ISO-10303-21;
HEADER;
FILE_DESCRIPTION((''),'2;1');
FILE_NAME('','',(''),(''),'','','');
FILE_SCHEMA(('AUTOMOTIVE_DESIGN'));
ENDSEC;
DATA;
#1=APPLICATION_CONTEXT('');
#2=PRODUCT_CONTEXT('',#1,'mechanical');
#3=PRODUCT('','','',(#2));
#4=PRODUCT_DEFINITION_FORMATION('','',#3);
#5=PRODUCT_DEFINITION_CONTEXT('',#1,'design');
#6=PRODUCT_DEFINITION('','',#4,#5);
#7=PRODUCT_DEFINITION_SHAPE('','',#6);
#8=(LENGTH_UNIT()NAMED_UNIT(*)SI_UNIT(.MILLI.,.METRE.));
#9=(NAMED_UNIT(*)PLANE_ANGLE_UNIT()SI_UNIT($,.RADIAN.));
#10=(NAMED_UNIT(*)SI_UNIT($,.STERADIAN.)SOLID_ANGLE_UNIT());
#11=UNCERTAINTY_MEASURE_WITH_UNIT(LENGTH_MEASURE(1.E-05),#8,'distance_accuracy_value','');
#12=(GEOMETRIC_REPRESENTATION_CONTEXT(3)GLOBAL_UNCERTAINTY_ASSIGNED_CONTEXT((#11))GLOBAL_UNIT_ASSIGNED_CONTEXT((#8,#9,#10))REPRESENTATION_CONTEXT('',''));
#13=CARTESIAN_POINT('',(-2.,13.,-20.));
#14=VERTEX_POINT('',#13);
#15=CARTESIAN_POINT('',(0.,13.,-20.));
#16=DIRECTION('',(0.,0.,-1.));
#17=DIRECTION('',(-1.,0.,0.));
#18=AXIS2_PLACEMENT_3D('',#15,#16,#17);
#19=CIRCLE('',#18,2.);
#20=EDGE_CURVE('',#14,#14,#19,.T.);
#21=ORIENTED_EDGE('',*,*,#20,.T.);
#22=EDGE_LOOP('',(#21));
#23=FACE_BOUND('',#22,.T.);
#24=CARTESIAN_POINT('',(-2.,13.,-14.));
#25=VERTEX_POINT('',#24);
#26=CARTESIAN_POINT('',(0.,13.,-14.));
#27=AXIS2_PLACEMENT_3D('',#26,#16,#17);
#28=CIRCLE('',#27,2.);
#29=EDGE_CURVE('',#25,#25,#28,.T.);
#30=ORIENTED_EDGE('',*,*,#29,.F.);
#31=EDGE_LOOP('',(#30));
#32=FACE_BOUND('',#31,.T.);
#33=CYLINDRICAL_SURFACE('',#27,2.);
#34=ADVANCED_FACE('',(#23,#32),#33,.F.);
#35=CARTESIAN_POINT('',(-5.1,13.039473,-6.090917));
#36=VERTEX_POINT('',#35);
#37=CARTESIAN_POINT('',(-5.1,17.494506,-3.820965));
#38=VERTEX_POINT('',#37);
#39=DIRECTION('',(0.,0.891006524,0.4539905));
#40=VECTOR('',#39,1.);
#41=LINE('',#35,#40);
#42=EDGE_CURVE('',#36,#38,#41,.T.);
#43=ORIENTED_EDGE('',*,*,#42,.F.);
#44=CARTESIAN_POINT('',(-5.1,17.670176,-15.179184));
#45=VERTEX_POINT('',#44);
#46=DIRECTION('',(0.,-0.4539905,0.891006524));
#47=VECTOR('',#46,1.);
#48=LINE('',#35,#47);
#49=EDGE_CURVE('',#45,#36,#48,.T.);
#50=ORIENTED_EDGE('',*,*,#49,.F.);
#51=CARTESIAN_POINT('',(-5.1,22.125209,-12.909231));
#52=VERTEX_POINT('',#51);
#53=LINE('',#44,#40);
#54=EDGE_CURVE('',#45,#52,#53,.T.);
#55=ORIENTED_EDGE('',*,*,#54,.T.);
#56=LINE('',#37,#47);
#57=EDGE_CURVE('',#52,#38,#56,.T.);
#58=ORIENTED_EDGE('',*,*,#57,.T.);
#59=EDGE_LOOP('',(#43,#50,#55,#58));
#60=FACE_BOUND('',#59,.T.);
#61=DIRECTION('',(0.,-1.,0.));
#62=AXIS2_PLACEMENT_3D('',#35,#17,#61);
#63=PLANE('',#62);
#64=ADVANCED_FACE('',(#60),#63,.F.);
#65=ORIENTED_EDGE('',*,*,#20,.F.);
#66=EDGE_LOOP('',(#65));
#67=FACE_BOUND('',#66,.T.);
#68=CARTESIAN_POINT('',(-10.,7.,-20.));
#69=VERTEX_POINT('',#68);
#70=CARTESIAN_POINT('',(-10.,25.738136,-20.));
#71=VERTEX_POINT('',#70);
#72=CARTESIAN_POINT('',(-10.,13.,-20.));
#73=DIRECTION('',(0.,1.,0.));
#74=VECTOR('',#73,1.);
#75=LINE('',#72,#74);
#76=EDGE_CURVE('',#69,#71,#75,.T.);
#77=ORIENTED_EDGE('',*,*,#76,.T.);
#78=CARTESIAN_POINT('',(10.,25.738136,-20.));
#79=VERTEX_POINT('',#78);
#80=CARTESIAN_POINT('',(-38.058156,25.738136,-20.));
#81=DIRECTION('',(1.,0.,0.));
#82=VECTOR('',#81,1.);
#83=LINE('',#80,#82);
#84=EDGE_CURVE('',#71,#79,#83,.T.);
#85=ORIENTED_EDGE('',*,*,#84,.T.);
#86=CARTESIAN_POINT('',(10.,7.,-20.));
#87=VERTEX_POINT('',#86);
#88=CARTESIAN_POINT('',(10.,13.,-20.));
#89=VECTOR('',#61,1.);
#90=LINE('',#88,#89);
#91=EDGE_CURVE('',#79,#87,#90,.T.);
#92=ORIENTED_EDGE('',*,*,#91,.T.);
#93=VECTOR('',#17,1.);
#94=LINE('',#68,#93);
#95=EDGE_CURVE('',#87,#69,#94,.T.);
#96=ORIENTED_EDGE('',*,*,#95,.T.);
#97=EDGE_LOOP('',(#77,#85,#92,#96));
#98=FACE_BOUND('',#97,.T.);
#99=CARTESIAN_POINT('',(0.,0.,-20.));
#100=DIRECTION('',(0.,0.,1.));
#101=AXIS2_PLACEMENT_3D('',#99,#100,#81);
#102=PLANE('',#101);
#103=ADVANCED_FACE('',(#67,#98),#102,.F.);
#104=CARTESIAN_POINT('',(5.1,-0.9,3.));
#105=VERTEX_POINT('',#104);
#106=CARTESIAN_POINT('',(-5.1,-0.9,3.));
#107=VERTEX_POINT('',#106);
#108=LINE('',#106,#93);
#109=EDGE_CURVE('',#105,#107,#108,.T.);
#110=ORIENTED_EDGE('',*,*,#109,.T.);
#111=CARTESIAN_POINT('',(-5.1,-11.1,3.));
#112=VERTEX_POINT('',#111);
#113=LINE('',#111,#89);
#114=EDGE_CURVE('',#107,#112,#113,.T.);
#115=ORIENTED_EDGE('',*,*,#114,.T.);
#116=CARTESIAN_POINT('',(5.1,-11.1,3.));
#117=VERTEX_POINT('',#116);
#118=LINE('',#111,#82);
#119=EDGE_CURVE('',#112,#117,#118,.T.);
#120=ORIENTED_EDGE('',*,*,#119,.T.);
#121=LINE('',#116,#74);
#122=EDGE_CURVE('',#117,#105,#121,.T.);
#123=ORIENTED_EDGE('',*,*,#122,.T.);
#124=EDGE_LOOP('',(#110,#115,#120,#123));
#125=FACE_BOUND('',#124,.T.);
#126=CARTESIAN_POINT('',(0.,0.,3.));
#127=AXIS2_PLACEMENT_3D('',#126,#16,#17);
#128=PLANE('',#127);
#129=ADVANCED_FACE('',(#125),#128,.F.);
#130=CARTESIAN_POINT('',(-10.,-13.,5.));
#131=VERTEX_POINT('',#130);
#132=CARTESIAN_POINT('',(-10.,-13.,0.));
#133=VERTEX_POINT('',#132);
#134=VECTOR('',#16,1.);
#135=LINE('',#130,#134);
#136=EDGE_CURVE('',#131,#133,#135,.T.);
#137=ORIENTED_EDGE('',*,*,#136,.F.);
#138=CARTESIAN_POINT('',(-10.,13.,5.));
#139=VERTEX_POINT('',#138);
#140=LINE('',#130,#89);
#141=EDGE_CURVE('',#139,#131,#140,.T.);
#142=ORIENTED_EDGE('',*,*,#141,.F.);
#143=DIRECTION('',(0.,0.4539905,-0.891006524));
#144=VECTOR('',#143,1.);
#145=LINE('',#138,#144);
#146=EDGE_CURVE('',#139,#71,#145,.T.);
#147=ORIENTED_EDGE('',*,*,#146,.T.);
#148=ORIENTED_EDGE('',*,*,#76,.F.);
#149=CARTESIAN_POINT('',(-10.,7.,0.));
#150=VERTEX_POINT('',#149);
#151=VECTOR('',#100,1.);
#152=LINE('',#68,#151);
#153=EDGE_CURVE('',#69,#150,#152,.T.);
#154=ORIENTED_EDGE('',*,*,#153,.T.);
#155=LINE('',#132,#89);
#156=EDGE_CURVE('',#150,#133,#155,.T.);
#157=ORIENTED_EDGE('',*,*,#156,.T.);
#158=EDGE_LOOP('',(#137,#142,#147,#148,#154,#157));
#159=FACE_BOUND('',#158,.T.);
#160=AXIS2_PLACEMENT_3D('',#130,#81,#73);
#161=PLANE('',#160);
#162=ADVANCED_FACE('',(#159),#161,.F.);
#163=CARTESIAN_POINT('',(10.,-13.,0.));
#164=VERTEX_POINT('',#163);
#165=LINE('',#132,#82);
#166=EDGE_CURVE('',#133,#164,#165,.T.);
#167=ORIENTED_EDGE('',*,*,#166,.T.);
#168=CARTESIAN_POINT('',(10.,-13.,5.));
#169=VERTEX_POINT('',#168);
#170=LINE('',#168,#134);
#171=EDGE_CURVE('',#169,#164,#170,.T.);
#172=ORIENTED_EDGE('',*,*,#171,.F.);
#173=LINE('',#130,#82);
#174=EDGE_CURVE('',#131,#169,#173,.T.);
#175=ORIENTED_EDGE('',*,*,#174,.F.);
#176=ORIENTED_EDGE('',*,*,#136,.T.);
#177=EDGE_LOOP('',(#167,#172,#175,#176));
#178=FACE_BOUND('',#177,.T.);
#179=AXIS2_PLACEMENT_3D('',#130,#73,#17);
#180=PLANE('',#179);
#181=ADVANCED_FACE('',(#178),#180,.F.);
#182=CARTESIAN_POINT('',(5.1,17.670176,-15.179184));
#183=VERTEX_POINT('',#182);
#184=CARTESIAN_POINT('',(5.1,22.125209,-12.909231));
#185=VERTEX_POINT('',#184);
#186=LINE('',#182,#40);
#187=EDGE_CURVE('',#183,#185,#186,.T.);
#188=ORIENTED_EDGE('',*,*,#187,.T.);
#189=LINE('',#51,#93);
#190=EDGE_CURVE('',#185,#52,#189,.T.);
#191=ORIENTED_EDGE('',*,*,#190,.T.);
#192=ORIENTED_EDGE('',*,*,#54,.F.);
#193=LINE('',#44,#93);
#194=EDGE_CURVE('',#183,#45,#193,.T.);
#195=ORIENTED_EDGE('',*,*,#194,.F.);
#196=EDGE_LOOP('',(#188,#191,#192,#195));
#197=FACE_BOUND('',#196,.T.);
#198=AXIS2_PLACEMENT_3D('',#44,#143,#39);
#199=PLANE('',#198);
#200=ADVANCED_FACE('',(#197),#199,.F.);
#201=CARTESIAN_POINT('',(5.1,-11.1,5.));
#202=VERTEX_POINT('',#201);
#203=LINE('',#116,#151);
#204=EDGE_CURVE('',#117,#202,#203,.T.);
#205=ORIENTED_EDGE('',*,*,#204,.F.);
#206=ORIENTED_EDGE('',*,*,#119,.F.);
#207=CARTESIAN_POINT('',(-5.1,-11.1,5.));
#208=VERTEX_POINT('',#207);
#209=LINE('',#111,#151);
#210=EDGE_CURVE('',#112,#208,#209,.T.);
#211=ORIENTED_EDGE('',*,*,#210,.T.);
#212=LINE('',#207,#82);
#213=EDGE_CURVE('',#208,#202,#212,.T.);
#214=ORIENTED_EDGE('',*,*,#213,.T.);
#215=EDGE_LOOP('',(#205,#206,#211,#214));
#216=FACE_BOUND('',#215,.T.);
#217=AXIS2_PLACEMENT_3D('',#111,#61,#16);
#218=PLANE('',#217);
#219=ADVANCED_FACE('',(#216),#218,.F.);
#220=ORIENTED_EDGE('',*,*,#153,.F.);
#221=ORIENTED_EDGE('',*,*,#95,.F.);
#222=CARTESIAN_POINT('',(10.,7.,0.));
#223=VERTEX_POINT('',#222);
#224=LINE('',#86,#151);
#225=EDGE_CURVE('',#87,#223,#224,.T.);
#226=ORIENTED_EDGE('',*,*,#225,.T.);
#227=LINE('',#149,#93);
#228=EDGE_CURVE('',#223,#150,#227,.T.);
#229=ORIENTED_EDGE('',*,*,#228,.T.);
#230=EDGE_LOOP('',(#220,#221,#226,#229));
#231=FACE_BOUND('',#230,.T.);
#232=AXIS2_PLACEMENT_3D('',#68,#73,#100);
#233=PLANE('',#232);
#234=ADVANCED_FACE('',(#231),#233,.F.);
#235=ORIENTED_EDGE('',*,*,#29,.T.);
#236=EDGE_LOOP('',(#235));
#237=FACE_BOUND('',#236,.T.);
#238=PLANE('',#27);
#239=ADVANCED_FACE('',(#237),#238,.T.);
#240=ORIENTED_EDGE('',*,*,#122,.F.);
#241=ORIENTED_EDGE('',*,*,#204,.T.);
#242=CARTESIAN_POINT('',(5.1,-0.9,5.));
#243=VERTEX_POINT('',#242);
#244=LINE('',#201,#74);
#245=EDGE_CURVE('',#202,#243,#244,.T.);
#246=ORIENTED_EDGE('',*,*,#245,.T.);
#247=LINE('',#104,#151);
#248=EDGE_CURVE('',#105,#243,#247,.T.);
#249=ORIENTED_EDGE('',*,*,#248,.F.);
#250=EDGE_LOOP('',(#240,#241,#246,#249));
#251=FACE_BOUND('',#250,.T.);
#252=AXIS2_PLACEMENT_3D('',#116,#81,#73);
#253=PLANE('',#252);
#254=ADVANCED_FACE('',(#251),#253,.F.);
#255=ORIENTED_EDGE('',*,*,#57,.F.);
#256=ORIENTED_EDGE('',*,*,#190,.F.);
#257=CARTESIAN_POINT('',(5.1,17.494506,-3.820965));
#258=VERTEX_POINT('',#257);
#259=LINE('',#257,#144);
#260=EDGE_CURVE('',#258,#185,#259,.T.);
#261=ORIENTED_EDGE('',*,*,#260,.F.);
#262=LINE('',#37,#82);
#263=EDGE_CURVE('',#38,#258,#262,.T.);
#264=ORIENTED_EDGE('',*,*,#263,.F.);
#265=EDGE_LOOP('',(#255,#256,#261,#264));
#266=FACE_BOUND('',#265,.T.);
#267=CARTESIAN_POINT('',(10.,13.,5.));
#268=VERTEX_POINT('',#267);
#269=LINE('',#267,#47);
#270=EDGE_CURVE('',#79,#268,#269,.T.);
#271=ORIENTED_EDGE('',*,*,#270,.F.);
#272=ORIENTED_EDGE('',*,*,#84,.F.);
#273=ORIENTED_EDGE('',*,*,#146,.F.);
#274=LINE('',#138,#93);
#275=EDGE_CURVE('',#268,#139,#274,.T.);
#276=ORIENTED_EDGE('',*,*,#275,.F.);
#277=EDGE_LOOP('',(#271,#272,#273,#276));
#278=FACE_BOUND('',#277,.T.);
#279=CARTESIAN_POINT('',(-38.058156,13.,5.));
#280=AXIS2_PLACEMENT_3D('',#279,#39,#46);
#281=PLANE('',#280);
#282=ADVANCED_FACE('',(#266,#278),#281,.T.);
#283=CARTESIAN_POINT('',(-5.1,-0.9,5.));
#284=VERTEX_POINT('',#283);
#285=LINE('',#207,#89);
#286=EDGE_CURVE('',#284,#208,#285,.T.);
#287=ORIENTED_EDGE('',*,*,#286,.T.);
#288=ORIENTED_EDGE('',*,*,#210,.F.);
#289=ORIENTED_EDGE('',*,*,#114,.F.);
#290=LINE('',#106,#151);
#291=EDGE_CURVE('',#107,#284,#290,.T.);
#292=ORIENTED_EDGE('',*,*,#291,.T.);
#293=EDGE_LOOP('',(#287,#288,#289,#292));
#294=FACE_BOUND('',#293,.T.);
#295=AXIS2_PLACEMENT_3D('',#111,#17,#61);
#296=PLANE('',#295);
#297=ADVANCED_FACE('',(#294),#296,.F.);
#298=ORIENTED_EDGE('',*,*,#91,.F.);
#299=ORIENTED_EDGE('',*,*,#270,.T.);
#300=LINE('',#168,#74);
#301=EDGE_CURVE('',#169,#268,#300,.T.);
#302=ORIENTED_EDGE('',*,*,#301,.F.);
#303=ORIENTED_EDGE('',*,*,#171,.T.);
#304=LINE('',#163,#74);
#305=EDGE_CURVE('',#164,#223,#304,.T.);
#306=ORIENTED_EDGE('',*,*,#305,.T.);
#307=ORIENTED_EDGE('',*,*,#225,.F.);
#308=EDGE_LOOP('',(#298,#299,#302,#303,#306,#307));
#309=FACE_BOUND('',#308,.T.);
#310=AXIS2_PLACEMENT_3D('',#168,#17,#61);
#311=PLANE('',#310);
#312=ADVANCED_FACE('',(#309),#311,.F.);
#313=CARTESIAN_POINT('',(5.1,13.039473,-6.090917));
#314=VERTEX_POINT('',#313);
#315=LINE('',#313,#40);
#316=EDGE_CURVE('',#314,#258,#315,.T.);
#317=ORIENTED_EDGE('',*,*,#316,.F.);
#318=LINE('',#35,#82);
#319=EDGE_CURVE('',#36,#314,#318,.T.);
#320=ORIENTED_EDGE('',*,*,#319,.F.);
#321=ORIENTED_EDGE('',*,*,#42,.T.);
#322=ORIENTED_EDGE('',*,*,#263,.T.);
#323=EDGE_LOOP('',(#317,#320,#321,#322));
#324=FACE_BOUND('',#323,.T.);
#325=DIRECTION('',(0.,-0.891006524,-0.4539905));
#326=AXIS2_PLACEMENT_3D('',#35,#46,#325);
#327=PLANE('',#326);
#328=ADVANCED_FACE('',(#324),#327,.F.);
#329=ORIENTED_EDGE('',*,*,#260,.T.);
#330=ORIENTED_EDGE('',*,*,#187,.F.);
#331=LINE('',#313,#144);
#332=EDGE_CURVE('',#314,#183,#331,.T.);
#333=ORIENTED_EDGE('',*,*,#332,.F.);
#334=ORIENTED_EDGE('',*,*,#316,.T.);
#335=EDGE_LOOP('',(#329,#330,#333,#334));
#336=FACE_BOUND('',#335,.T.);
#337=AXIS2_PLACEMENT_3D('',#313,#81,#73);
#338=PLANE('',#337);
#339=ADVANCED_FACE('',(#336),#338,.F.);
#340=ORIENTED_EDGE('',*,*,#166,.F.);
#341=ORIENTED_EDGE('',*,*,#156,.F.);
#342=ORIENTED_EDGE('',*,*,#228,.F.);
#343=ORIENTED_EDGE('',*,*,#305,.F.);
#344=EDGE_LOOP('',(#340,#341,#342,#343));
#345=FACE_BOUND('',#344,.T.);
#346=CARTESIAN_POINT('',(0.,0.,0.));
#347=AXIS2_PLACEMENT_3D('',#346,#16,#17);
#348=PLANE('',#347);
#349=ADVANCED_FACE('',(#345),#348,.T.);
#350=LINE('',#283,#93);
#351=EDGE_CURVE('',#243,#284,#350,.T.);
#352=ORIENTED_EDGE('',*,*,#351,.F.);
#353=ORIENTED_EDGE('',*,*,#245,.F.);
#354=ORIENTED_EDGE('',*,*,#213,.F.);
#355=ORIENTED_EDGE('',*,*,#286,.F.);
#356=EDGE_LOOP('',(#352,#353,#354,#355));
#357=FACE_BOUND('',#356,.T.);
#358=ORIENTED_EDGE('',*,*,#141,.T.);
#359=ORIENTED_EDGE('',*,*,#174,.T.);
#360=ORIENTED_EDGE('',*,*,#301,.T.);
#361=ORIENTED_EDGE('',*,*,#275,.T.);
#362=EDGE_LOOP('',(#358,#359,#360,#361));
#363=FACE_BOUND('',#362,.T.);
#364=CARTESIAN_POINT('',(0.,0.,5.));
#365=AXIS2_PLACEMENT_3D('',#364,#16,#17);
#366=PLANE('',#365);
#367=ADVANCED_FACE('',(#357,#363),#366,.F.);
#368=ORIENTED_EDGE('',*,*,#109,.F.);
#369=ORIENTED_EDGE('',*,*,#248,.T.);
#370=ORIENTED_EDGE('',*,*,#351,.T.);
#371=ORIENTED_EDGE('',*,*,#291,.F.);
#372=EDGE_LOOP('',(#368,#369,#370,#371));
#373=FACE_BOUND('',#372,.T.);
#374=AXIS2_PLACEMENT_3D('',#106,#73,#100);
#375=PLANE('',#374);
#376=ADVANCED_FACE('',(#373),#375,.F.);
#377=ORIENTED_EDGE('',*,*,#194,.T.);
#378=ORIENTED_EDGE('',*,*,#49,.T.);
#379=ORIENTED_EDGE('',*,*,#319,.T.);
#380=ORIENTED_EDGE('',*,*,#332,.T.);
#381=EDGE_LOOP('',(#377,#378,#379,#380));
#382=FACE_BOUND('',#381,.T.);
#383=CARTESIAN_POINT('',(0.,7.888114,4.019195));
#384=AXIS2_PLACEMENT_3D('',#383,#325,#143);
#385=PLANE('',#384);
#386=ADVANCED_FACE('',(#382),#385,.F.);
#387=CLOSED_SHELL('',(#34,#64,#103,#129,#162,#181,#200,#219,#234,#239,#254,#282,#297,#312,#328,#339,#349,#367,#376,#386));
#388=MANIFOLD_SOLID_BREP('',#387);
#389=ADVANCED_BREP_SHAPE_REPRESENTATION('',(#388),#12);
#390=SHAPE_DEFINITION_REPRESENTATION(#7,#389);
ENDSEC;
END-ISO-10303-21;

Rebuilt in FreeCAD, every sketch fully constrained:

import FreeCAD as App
import Part
import Sketcher

V = App.Vector
Q = App.Units.Quantity

doc = App.newDocument("Part")
body = doc.addObject("PartDesign::Body", "Body")

# Sketch on XY plane
sketch1 = body.newObject("Sketcher::SketchObject", "Sketch")
sketch1.AttachmentSupport = (doc.getObject("XY_Plane"), [""])
sketch1.MapMode = "FlatFace"
sketch1.addGeometry(Part.LineSegment(V(-10, 13, 0), V(-10, -13, 0)), False)
sketch1.addGeometry(Part.LineSegment(V(-10, -13, 0), V(10, -13, 0)), False)
sketch1.addGeometry(Part.LineSegment(V(10, -13, 0), V(10, 13, 0)), False)
sketch1.addGeometry(Part.LineSegment(V(10, 13, 0), V(-10, 13, 0)), False)
sketch1.addConstraint(Sketcher.Constraint("Coincident", 0, 2, 1, 1))
sketch1.addConstraint(Sketcher.Constraint("Coincident", 1, 2, 2, 1))
sketch1.addConstraint(Sketcher.Constraint("Coincident", 2, 2, 3, 1))
sketch1.addConstraint(Sketcher.Constraint("Coincident", 3, 2, 0, 1))
sketch1.addConstraint(Sketcher.Constraint("Vertical", 0))
sketch1.addConstraint(Sketcher.Constraint("Horizontal", 1))
sketch1.addConstraint(Sketcher.Constraint("Vertical", 2))
sketch1.addConstraint(Sketcher.Constraint("Horizontal", 3))
sketch1.addConstraint(Sketcher.Constraint("Symmetric", 0, 2, 2, 2, -1, 1))
sketch1.addConstraint(Sketcher.Constraint("DistanceX", 1, 1, 1, 2, 20.0))
sketch1.addConstraint(Sketcher.Constraint("DistanceY", 0, 2, 0, 1, 26.0))
pad1 = body.newObject("PartDesign::Pad", "Pad")
pad1.Profile = sketch1
pad1.Length = 5

# Sketch on XY plane
sketch2 = body.newObject("Sketcher::SketchObject", "Sketch001")
sketch2.AttachmentSupport = (doc.getObject("XY_Plane"), [""])
sketch2.MapMode = "FlatFace"
sketch2.addGeometry(Part.LineSegment(V(10, 13, 0), V(10, 7, 0)), False)
sketch2.addGeometry(Part.LineSegment(V(10, 7, 0), V(-10, 7, 0)), False)
sketch2.addGeometry(Part.LineSegment(V(-10, 7, 0), V(-10, 13, 0)), False)
sketch2.addGeometry(Part.LineSegment(V(-10, 13, 0), V(10, 13, 0)), False)
sketch2.addConstraint(Sketcher.Constraint("Coincident", 0, 2, 1, 1))
sketch2.addConstraint(Sketcher.Constraint("Coincident", 1, 2, 2, 1))
sketch2.addConstraint(Sketcher.Constraint("Coincident", 2, 2, 3, 1))
sketch2.addConstraint(Sketcher.Constraint("Coincident", 3, 2, 0, 1))
sketch2.addConstraint(Sketcher.Constraint("Vertical", 0))
sketch2.addConstraint(Sketcher.Constraint("Horizontal", 1))
sketch2.addConstraint(Sketcher.Constraint("Vertical", 2))
sketch2.addConstraint(Sketcher.Constraint("Horizontal", 3))
sketch2.addConstraint(Sketcher.Constraint("DistanceX", 1, 2, 1, 1, 20.0))
sketch2.addConstraint(Sketcher.Constraint("DistanceY", 0, 2, 0, 1, 6.0))
sketch2.addConstraint(Sketcher.Constraint("DistanceX", -1, 1, 0, 2, 10.0))
sketch2.addConstraint(Sketcher.Constraint("DistanceY", -1, 1, 0, 2, 7.0))
pad2 = body.newObject("PartDesign::Pad", "Pad001")
pad2.Profile = sketch2
pad2.Length = 20
pad2.Reversed = True

# Sketch on XY plane
sketch3 = body.newObject("Sketcher::SketchObject", "Sketch002")
sketch3.AttachmentSupport = (doc.getObject("XY_Plane"), [""])
sketch3.MapMode = "FlatFace"
sketch3.AttachmentOffset = App.Placement(V(0, 0, 5), App.Rotation())
sketch3.addGeometry(Part.LineSegment(V(-5, -1, 0), V(-5, -11, 0)), False)
sketch3.addGeometry(Part.LineSegment(V(-5, -11, 0), V(5, -11, 0)), False)
sketch3.addGeometry(Part.LineSegment(V(5, -11, 0), V(5, -1, 0)), False)
sketch3.addGeometry(Part.LineSegment(V(5, -1, 0), V(-5, -1, 0)), False)
sketch3.addConstraint(Sketcher.Constraint("Coincident", 0, 2, 1, 1))
sketch3.addConstraint(Sketcher.Constraint("Coincident", 1, 2, 2, 1))
sketch3.addConstraint(Sketcher.Constraint("Coincident", 2, 2, 3, 1))
sketch3.addConstraint(Sketcher.Constraint("Coincident", 3, 2, 0, 1))
sketch3.addConstraint(Sketcher.Constraint("Vertical", 0))
sketch3.addConstraint(Sketcher.Constraint("Horizontal", 1))
sketch3.addConstraint(Sketcher.Constraint("Vertical", 2))
sketch3.addConstraint(Sketcher.Constraint("Horizontal", 3))
sketch3.addConstraint(Sketcher.Constraint("Equal", 3, 0))
sketch3.addConstraint(Sketcher.Constraint("DistanceX", 1, 1, 1, 2, 10.2))
sketch3.addConstraint(Sketcher.Constraint("DistanceX", 0, 2, -1, 1, 5.1))
sketch3.addConstraint(Sketcher.Constraint("DistanceY", 0, 2, -1, 1, 11.1))
pocket1 = body.newObject("PartDesign::Pocket", "Pocket")
pocket1.Profile = sketch3
pocket1.Length = 2

# Sketch on YZ plane
sketch4 = body.newObject("Sketcher::SketchObject", "Sketch003")
sketch4.AttachmentSupport = (doc.getObject("YZ_Plane"), [""])
sketch4.MapMode = "FlatFace"
sketch4.AttachmentOffset = App.Placement(V(0, 0, 10), App.Rotation())
sketch4.addGeometry(Part.LineSegment(V(26, -20, 0), V(13, 5, 0)), False)
sketch4.addGeometry(Part.LineSegment(V(13, 5, 0), V(13, -20, 0)), False)
sketch4.addGeometry(Part.LineSegment(V(13, -20, 0), V(26, -20, 0)), False)
sketch4.addConstraint(Sketcher.Constraint("Coincident", 0, 2, 1, 1))
sketch4.addConstraint(Sketcher.Constraint("Coincident", 1, 2, 2, 1))
sketch4.addConstraint(Sketcher.Constraint("Coincident", 2, 2, 0, 1))
sketch4.addConstraint(Sketcher.Constraint("Vertical", 1))
sketch4.addConstraint(Sketcher.Constraint("Horizontal", 2))
sketch4.addConstraint(Sketcher.Constraint("DistanceY", 1, 2, 1, 1, 25.0))
sketch4.addConstraint(Sketcher.Constraint("Angle", 0, Q("117 deg")))
sketch4.addConstraint(Sketcher.Constraint("DistanceX", -1, 1, 0, 2, 13.0))
sketch4.addConstraint(Sketcher.Constraint("DistanceY", -1, 1, 0, 2, 5.0))
pad3 = body.newObject("PartDesign::Pad", "Pad002")
pad3.Profile = sketch4
pad3.Length = 20
pad3.Reversed = True

# Sketch on an angled plane
sketch5 = body.newObject("Sketcher::SketchObject", "Sketch004")
sketch5.Placement = App.Placement(V(0, 12.343147, 6.289147), App.Rotation(V(1, 0, 0), V(0, 0.4539905, -0.891006524), V(0, 0.891006524, 0.4539905), "ZXY"))
sketch5.addGeometry(Part.LineSegment(V(-5, 22, 0), V(-5, 11, 0)), False)
sketch5.addGeometry(Part.LineSegment(V(-5, 11, 0), V(5, 11, 0)), False)
sketch5.addGeometry(Part.LineSegment(V(5, 11, 0), V(5, 22, 0)), False)
sketch5.addGeometry(Part.LineSegment(V(5, 22, 0), V(-5, 22, 0)), False)
sketch5.addConstraint(Sketcher.Constraint("Coincident", 0, 2, 1, 1))
sketch5.addConstraint(Sketcher.Constraint("Coincident", 1, 2, 2, 1))
sketch5.addConstraint(Sketcher.Constraint("Coincident", 2, 2, 3, 1))
sketch5.addConstraint(Sketcher.Constraint("Coincident", 3, 2, 0, 1))
sketch5.addConstraint(Sketcher.Constraint("Vertical", 0))
sketch5.addConstraint(Sketcher.Constraint("Horizontal", 1))
sketch5.addConstraint(Sketcher.Constraint("Vertical", 2))
sketch5.addConstraint(Sketcher.Constraint("Horizontal", 3))
sketch5.addConstraint(Sketcher.Constraint("Equal", 3, 0))
sketch5.addConstraint(Sketcher.Constraint("DistanceX", 1, 1, 1, 2, 10.2))
sketch5.addConstraint(Sketcher.Constraint("DistanceX", 0, 2, -1, 1, 5.1))
sketch5.addConstraint(Sketcher.Constraint("DistanceY", -1, 1, 0, 2, 11.346844))
pocket2 = body.newObject("PartDesign::Pocket", "Pocket001")
pocket2.Profile = sketch5
pocket2.Length = 5

# Sketch on XY plane
sketch6 = body.newObject("Sketcher::SketchObject", "Sketch005")
sketch6.AttachmentSupport = (doc.getObject("XY_Plane"), [""])
sketch6.MapMode = "FlatFace"
sketch6.AttachmentOffset = App.Placement(V(0, 0, -20), App.Rotation())
sketch6.addGeometry(Part.Circle(V(0, 13, 0), V(0, 0, 1), 2), False)
sketch6.addConstraint(Sketcher.Constraint("PointOnObject", 0, 3, -2))
sketch6.addConstraint(Sketcher.Constraint("Diameter", 0, 4.0))
sketch6.addConstraint(Sketcher.Constraint("DistanceY", -1, 1, 0, 3, 13.0))
pocket3 = body.newObject("PartDesign::Pocket", "Pocket002")
pocket3.Profile = sketch6
pocket3.Length = 6
pocket3.Reversed = True

doc.recompute()
